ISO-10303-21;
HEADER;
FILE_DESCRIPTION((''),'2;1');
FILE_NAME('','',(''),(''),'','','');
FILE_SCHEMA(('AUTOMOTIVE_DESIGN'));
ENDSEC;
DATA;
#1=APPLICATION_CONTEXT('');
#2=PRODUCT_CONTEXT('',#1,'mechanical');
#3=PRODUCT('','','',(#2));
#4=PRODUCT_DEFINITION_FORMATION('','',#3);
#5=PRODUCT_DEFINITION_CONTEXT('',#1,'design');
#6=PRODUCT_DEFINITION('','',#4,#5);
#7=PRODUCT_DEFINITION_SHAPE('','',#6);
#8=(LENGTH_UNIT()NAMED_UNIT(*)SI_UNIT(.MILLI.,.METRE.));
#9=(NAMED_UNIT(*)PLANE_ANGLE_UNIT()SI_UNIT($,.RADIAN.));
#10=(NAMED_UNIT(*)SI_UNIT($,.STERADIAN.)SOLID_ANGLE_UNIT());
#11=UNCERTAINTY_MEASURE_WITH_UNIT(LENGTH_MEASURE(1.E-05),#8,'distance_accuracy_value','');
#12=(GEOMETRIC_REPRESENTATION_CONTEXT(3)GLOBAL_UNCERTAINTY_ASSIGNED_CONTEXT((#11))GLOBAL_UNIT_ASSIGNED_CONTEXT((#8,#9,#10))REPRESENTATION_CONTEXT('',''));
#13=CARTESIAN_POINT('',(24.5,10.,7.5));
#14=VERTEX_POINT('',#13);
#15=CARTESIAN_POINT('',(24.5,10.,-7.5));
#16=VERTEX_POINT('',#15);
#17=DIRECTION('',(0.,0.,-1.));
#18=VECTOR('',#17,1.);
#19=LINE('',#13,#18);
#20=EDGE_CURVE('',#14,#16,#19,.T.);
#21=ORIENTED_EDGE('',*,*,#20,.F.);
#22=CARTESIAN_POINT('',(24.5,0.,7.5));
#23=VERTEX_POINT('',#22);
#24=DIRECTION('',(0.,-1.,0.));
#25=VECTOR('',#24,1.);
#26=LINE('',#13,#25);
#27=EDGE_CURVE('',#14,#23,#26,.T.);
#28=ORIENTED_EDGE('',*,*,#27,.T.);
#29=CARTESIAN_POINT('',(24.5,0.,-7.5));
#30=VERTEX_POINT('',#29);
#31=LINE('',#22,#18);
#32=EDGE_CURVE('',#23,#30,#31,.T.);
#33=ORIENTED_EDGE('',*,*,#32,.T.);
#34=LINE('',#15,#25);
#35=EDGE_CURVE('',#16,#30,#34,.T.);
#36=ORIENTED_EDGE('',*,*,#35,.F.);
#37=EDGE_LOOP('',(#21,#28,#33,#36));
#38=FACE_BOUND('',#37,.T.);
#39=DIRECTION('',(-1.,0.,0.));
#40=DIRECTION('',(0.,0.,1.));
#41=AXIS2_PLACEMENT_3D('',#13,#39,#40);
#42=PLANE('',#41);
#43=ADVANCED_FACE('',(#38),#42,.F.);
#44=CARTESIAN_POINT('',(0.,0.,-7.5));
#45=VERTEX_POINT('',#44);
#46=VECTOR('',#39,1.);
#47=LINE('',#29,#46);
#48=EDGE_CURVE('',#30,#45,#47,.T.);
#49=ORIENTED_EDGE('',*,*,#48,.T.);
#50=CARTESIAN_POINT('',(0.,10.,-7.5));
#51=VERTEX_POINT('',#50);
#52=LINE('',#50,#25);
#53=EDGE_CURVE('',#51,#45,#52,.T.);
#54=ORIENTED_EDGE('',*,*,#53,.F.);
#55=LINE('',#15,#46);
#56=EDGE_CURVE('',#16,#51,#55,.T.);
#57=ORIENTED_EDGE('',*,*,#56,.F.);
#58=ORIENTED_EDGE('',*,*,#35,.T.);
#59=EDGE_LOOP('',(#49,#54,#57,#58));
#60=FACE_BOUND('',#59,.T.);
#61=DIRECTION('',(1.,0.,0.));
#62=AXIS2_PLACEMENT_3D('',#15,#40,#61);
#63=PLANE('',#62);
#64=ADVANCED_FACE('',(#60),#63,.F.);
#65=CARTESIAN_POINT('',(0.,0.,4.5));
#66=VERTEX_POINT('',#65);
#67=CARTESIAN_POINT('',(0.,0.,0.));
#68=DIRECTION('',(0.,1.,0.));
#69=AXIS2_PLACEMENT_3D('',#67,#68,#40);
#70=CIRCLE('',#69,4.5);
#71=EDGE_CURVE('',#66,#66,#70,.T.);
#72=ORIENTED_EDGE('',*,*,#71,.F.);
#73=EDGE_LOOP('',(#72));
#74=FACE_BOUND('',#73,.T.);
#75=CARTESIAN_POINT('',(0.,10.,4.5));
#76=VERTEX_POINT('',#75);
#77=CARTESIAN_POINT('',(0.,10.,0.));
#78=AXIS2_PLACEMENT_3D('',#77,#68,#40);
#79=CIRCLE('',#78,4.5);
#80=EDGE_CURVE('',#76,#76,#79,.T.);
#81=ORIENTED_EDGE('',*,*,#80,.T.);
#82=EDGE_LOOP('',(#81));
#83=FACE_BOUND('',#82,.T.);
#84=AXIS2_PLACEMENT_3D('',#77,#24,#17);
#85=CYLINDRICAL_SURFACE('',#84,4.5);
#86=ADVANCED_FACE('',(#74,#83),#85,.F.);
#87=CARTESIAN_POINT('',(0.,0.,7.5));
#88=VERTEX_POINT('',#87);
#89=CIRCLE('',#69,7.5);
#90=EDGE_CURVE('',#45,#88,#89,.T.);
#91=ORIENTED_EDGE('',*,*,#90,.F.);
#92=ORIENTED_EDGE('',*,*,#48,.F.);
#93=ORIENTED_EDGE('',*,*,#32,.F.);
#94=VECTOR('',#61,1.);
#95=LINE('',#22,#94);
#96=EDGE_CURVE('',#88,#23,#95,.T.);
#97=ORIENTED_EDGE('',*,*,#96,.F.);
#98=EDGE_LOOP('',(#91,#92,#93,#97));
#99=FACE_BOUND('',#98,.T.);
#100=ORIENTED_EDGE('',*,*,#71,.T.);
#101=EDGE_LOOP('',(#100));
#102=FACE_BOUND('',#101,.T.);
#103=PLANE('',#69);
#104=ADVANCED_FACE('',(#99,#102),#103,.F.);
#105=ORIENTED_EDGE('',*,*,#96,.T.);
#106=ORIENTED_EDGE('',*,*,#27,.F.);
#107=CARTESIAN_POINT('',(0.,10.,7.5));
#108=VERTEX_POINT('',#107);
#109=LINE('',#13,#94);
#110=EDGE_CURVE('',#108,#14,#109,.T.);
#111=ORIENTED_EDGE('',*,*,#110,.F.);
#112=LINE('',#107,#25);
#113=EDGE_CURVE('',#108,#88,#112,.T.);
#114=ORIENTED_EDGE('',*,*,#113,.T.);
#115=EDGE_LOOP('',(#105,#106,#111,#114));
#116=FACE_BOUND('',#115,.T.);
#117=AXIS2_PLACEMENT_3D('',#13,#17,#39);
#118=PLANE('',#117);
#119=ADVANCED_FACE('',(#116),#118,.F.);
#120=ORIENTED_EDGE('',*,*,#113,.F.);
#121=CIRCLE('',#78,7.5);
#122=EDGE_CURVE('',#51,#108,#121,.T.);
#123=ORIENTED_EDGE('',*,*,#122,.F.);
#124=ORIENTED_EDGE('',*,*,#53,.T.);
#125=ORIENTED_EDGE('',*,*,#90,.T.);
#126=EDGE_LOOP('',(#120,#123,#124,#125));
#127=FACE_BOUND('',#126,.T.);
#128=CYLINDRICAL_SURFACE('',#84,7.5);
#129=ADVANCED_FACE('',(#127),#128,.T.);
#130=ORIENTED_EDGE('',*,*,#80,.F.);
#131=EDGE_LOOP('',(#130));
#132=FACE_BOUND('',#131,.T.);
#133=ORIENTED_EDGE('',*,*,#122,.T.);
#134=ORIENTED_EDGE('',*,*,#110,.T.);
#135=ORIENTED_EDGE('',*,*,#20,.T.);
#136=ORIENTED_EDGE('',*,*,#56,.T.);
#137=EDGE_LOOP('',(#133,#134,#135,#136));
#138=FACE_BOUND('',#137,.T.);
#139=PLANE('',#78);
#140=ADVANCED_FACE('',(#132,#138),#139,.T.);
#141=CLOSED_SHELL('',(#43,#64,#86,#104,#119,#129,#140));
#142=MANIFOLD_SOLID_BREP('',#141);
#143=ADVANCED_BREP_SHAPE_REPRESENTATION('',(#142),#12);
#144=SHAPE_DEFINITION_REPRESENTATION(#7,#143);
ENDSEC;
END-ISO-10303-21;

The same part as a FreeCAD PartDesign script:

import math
import FreeCAD as App
import Part
import Sketcher
Q = App.Units.Quantity

doc = App.newDocument("Part")
body = doc.addObject("PartDesign::Body", "Body")

# Sketch on XZ plane
sketch1 = body.newObject("Sketcher::SketchObject", "Sketch")
sketch1.AttachmentSupport = (doc.getObject("XZ_Plane"), [""])
sketch1.MapMode = "FlatFace"
sketch1.addGeometry([
    Part.LineSegment(App.Vector(0, 7.5, 0), App.Vector(24.5, 7.5, 0)),  # 0
    Part.LineSegment(App.Vector(24.5, 7.5, 0), App.Vector(24.5, -7.5, 0)),  # 1
    Part.LineSegment(App.Vector(24.5, -7.5, 0), App.Vector(0, -7.5, 0)),  # 2
    Part.ArcOfCircle(Part.Circle(App.Vector(0, 0, 0), App.Vector(0, 0, 1), 7.5), math.radians(90), math.radians(270)),  # 3
    Part.Circle(App.Vector(0, 0, 0), App.Vector(0, 0, 1), 4.5),  # 4
], False)
sketch1.addConstraint([
    Sketcher.Constraint("Coincident", 0, 2, 1, 1),
    Sketcher.Constraint("Coincident", 1, 2, 2, 1),
    Sketcher.Constraint("Tangent", 2, 2, 3, 2),
    Sketcher.Constraint("Tangent", 3, 1, 0, 1),
    Sketcher.Constraint("Horizontal", 0),
    Sketcher.Constraint("Vertical", 1),
    Sketcher.Constraint("Horizontal", 2),
    Sketcher.Constraint("Coincident", 3, 3, -1, 1),
    Sketcher.Constraint("Coincident", 4, 3, -1, 1),
    Sketcher.Constraint("Diameter", 4, Q("9 mm")),
    Sketcher.Constraint("Radius", 3, Q("7.5 mm")),
    Sketcher.Constraint("DistanceX", 0, 1, 0, 2, Q("24.5 mm")),
])
pad1 = body.newObject("PartDesign::Pad", "Pad")
pad1.Profile = sketch1
pad1.Length = 10
pad1.Reversed = True

doc.recompute()
